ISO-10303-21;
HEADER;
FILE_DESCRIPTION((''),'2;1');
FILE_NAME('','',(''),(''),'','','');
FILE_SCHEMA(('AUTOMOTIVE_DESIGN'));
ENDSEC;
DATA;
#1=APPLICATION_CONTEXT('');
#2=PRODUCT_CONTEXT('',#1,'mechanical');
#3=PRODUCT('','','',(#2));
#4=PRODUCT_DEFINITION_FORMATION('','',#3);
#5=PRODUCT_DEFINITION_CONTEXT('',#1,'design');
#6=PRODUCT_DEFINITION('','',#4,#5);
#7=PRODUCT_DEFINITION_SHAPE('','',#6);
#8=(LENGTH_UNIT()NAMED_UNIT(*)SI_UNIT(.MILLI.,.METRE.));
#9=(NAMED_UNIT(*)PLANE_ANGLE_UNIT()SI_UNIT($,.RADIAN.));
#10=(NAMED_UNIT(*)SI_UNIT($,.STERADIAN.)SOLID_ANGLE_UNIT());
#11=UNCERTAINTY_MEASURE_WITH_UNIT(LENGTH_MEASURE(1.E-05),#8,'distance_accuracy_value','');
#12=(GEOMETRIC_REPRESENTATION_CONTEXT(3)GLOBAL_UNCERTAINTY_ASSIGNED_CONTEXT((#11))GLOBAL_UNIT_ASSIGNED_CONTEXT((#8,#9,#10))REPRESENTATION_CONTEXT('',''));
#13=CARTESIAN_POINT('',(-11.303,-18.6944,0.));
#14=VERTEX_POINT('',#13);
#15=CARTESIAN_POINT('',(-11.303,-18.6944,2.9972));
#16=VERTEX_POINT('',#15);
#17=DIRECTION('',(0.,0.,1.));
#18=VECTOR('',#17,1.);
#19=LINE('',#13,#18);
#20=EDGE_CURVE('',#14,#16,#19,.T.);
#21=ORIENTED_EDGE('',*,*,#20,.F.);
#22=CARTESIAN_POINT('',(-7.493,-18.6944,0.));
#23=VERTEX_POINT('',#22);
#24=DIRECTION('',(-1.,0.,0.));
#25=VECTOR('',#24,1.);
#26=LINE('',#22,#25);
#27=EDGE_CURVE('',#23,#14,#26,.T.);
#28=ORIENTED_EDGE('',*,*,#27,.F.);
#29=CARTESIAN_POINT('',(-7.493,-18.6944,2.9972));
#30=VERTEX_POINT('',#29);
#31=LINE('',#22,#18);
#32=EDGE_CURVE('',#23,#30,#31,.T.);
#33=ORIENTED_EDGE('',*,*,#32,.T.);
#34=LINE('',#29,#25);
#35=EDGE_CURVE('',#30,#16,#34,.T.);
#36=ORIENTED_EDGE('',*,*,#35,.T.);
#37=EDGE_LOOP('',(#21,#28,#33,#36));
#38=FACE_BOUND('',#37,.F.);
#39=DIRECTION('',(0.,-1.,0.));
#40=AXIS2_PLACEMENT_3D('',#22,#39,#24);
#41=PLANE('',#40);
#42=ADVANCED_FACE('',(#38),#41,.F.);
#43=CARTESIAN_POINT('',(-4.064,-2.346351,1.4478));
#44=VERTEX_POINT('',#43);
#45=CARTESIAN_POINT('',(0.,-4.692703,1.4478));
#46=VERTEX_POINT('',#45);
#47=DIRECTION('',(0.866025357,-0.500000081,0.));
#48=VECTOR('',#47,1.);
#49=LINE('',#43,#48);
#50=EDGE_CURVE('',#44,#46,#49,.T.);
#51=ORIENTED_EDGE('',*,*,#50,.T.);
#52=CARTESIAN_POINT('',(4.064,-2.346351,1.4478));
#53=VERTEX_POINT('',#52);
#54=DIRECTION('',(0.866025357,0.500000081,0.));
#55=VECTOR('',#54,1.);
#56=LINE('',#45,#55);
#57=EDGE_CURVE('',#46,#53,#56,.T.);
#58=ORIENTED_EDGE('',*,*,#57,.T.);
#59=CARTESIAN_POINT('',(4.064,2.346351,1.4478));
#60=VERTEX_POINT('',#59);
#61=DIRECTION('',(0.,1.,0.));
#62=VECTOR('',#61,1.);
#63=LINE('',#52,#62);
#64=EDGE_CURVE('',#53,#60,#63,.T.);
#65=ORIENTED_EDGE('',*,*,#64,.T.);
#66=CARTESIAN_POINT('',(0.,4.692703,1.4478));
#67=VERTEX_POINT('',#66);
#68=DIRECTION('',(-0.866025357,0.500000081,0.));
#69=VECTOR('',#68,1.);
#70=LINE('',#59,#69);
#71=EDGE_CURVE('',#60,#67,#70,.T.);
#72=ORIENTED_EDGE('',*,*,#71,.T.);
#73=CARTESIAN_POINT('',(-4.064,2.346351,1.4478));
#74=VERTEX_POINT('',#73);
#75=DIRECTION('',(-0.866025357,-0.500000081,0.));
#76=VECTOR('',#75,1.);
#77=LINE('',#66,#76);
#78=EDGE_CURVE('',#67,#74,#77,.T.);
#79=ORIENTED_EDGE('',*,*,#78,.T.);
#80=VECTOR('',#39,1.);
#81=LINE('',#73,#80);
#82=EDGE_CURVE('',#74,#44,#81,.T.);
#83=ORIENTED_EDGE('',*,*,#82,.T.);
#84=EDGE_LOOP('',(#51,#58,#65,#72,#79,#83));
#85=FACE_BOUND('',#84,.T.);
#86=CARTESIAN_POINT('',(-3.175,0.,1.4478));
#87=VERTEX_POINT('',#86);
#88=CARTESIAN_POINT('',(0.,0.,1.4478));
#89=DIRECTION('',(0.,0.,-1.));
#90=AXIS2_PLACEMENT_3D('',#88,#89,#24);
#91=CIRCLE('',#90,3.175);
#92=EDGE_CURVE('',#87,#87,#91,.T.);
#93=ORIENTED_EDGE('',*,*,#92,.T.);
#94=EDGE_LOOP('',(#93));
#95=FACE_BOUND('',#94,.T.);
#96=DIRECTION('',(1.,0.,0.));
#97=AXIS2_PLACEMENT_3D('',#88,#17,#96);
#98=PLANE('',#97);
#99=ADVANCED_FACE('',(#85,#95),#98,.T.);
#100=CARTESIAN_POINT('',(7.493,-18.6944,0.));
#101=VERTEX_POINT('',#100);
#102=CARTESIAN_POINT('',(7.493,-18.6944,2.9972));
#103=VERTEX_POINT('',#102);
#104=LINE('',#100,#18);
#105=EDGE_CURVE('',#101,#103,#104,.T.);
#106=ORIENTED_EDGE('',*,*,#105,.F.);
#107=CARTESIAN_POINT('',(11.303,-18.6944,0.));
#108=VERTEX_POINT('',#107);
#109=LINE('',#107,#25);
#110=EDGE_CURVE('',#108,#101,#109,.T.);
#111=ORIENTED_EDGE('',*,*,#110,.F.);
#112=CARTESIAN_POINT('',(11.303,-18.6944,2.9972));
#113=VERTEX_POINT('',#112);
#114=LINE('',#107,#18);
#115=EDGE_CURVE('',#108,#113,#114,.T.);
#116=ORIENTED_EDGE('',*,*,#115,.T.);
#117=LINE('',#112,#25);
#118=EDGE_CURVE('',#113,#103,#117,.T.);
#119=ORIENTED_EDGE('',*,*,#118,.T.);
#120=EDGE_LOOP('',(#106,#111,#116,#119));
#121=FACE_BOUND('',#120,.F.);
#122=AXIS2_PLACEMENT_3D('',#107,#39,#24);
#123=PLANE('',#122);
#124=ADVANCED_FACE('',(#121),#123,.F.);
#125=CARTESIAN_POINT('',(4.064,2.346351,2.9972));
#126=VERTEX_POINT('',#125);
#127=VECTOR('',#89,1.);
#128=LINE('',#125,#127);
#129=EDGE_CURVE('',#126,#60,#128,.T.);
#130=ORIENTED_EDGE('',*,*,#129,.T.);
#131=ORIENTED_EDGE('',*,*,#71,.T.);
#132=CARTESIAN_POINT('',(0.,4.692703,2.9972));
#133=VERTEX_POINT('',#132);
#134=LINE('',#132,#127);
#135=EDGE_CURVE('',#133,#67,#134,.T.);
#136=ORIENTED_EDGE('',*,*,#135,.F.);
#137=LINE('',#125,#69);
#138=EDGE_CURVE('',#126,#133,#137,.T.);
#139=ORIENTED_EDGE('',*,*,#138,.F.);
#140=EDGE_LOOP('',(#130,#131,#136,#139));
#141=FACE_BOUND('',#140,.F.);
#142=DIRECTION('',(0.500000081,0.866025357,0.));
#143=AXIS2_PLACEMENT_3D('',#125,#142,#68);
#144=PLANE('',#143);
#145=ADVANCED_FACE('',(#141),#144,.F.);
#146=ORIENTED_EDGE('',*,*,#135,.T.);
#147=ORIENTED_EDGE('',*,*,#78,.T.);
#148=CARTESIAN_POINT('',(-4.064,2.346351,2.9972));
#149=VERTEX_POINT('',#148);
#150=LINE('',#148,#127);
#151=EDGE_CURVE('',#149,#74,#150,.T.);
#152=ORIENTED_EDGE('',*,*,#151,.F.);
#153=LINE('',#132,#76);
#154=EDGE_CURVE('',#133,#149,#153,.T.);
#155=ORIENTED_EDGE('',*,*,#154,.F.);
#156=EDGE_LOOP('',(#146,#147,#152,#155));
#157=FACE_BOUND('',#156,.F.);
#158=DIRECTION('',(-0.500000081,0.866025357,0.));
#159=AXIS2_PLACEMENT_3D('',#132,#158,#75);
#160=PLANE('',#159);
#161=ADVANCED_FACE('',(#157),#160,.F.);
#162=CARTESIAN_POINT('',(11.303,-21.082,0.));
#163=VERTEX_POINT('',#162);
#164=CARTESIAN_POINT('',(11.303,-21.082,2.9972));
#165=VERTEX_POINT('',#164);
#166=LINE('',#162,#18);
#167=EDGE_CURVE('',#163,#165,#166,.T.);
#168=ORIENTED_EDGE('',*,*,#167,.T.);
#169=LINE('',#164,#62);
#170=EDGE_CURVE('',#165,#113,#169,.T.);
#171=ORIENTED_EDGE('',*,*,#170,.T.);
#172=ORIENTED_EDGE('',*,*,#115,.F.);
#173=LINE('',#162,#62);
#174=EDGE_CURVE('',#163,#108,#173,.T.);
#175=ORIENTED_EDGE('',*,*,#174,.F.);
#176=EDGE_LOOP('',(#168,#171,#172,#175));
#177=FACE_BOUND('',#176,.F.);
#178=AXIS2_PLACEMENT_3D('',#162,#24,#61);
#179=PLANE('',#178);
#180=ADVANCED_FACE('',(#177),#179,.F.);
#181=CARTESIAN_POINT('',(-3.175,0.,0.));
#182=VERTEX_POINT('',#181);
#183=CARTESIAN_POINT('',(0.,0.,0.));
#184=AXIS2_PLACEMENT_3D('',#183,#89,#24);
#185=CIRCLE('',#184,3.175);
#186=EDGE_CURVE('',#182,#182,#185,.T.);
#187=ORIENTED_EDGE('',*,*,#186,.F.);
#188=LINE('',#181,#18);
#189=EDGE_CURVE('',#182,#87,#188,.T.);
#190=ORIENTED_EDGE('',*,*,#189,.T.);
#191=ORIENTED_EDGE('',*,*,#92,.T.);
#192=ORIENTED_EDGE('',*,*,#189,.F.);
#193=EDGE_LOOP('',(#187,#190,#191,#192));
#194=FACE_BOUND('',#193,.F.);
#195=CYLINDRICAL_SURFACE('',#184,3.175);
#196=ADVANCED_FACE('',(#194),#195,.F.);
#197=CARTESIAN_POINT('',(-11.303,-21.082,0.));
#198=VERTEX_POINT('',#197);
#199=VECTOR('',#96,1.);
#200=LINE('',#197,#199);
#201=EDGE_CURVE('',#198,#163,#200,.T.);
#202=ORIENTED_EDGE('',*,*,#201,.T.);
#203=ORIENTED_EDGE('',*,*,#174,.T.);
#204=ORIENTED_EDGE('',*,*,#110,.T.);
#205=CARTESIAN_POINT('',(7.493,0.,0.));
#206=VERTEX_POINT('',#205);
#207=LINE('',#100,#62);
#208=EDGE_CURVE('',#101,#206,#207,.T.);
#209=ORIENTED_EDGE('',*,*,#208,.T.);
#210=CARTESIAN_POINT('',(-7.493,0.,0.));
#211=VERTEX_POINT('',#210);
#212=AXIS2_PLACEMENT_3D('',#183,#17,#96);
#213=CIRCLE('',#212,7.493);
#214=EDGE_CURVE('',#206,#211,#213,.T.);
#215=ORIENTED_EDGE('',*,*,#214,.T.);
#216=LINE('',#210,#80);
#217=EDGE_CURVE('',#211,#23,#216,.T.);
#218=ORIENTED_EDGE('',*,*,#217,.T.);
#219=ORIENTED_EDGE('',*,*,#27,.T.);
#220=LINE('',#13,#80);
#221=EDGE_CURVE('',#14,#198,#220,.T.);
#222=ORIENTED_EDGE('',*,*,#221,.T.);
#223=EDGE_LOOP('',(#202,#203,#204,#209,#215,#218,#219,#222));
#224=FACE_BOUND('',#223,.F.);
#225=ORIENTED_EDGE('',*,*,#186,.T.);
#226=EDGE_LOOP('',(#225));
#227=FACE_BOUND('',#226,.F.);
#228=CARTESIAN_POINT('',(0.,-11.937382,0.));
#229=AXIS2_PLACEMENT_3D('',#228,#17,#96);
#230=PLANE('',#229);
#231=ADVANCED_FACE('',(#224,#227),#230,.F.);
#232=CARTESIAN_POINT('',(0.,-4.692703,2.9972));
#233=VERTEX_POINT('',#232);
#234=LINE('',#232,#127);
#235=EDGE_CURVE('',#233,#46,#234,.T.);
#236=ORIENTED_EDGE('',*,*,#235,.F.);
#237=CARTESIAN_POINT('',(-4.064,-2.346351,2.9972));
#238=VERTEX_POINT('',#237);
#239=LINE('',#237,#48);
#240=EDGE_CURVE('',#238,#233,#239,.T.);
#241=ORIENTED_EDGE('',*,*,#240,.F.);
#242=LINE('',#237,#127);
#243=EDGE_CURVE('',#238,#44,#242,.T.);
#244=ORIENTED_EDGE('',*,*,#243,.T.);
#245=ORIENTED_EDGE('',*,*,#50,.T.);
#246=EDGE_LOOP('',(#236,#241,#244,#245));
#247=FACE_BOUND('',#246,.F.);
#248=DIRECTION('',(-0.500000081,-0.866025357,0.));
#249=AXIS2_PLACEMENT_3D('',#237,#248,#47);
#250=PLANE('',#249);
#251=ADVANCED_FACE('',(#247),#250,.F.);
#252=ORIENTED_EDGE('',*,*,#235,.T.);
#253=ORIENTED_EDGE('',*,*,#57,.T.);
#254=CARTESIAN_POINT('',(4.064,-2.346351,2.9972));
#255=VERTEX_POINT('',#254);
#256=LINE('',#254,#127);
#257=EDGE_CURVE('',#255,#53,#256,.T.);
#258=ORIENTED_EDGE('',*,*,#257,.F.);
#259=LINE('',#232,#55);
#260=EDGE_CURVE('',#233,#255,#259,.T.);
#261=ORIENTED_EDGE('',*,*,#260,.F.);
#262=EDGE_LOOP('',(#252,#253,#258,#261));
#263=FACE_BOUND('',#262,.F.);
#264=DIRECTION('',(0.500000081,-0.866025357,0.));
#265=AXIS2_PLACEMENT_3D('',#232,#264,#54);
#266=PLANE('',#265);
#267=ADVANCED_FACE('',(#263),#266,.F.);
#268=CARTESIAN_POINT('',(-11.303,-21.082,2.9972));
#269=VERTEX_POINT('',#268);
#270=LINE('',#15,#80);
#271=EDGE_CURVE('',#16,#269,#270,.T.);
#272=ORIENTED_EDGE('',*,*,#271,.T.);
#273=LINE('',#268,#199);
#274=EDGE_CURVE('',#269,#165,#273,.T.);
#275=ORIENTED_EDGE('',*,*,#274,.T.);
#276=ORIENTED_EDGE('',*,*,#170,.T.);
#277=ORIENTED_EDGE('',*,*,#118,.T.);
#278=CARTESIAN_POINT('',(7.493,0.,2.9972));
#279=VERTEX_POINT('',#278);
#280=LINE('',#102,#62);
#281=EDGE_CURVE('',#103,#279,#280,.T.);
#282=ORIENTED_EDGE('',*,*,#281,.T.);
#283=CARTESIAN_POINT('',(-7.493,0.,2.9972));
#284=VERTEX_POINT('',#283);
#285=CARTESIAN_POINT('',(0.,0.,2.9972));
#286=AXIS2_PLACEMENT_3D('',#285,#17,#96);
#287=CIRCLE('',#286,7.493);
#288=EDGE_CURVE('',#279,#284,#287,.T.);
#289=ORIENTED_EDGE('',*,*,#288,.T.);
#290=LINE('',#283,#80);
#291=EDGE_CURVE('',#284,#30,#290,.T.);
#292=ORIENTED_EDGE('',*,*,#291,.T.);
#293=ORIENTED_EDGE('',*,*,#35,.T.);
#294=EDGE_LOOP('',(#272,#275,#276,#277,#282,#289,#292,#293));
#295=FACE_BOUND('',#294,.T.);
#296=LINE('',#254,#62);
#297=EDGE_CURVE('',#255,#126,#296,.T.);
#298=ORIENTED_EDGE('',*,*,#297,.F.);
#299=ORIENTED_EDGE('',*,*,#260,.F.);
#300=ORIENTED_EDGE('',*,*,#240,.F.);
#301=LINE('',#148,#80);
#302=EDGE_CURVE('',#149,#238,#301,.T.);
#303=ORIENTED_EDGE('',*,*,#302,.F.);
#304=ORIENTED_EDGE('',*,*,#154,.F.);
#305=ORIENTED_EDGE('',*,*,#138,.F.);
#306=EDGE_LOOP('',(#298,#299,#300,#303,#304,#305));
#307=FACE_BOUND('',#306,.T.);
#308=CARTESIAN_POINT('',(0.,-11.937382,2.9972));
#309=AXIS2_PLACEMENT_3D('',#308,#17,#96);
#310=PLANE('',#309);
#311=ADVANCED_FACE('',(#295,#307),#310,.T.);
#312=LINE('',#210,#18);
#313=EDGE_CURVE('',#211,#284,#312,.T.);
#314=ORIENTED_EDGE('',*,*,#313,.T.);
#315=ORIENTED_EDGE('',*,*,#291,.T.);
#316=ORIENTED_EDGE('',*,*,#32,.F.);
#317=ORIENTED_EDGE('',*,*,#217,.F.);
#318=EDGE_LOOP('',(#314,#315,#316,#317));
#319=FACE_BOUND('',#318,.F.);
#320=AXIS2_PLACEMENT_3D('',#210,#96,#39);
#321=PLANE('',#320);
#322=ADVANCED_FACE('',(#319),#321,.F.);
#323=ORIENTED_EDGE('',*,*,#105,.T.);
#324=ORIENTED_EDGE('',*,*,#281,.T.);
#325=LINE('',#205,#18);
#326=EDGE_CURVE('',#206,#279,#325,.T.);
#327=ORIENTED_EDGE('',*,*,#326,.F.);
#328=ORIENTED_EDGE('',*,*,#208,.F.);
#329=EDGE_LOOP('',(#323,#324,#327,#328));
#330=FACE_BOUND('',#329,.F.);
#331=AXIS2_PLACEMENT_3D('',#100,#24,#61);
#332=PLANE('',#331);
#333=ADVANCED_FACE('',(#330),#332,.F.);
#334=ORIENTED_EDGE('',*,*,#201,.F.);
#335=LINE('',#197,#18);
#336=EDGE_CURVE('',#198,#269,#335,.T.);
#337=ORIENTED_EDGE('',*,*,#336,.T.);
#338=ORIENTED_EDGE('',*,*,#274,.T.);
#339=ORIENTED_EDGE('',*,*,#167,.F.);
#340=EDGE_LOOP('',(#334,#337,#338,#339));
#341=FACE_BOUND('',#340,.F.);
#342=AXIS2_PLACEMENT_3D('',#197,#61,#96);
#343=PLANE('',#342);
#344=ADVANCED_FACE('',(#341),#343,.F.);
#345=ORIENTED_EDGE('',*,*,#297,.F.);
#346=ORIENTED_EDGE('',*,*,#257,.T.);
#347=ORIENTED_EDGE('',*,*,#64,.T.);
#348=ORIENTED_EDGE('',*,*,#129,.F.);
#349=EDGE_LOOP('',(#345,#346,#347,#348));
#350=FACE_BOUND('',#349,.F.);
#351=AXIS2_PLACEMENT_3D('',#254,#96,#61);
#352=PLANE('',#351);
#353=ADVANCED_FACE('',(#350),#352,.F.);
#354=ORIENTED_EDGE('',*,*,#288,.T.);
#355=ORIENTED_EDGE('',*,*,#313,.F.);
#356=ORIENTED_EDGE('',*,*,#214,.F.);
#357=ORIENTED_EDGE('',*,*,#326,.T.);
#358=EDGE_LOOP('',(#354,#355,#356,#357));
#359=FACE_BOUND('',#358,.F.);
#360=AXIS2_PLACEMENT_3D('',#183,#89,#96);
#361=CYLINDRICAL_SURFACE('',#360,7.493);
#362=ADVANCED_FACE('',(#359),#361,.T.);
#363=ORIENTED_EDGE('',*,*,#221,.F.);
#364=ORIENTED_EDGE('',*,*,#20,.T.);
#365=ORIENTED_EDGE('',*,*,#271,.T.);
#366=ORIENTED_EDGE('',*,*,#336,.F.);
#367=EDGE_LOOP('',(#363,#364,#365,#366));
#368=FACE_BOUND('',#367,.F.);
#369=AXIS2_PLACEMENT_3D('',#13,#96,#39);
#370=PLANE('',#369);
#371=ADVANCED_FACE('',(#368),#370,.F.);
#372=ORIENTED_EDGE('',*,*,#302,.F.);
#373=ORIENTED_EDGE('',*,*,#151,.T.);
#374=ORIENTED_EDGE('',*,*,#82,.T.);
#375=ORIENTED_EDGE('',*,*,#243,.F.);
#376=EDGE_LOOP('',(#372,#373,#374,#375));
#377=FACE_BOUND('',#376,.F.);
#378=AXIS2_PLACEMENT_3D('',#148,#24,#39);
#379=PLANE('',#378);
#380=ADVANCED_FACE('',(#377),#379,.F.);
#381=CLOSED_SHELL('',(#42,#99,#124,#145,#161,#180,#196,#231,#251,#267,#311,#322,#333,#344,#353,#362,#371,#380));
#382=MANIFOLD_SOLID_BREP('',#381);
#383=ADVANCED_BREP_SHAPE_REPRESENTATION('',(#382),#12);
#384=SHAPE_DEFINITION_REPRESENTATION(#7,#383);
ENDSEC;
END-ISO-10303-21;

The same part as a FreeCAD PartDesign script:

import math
import FreeCAD as App
import Part
import Sketcher

V = App.Vector
Q = App.Units.Quantity

doc = App.newDocument("Part")
body = doc.addObject("PartDesign::Body", "Body")

sketch1 = body.newObject("Sketcher::SketchObject", "Sketch")
sketch1.AttachmentSupport = (doc.getObject("XY_Plane"), [""])
sketch1.MapMode = "FlatFace"
sketch1.addGeometry(Part.LineSegment(V(-7.5, 0, 0), V(-7.5, -18.7, 0)), False)
sketch1.addGeometry(Part.LineSegment(V(-7.5, -18.7, 0), V(-11.3, -18.7, 0)), False)
sketch1.addGeometry(Part.LineSegment(V(-11.3, -18.7, 0), V(-11.3, -21.1, 0)), False)
sketch1.addGeometry(Part.LineSegment(V(-11.3, -21.1, 0), V(11.3, -21.1, 0)), False)
sketch1.addGeometry(Part.LineSegment(V(11.3, -21.1, 0), V(11.3, -18.7, 0)), False)
sketch1.addGeometry(Part.LineSegment(V(11.3, -18.7, 0), V(7.5, -18.7, 0)), False)
sketch1.addGeometry(Part.LineSegment(V(7.5, -18.7, 0), V(7.5, 0, 0)), False)
sketch1.addGeometry(Part.ArcOfCircle(Part.Circle(V(0, 0, 0), V(0, 0, 1), 7.5), math.radians(0), math.radians(180)), False)
sketch1.addGeometry(Part.Circle(V(0, 0, 0), V(0, 0, 1), 3.2), False)
sketch1.addConstraint(Sketcher.Constraint("Coincident", 0, 2, 1, 1))
sketch1.addConstraint(Sketcher.Constraint("Coincident", 1, 2, 2, 1))
sketch1.addConstraint(Sketcher.Constraint("Coincident", 2, 2, 3, 1))
sketch1.addConstraint(Sketcher.Constraint("Coincident", 3, 2, 4, 1))
sketch1.addConstraint(Sketcher.Constraint("Coincident", 4, 2, 5, 1))
sketch1.addConstraint(Sketcher.Constraint("Coincident", 5, 2, 6, 1))
sketch1.addConstraint(Sketcher.Constraint("Tangent", 6, 2, 7, 1))
sketch1.addConstraint(Sketcher.Constraint("Tangent", 7, 2, 0, 1))
sketch1.addConstraint(Sketcher.Constraint("Vertical", 0))
sketch1.addConstraint(Sketcher.Constraint("Horizontal", 1))
sketch1.addConstraint(Sketcher.Constraint("Vertical", 2))
sketch1.addConstraint(Sketcher.Constraint("Horizontal", 3))
sketch1.addConstraint(Sketcher.Constraint("Vertical", 4))
sketch1.addConstraint(Sketcher.Constraint("Horizontal", 5))
sketch1.addConstraint(Sketcher.Constraint("Vertical", 6))
sketch1.addConstraint(Sketcher.Constraint("Coincident", 7, 3, -1, 1))
sketch1.addConstraint(Sketcher.Constraint("Coincident", 8, 3, -1, 1))
sketch1.addConstraint(Sketcher.Constraint("Symmetric", 1, 2, 4, 2, -2))
sketch1.addConstraint(Sketcher.Constraint("Diameter", 8, Q("0.25 in")))
sketch1.addConstraint(Sketcher.Constraint("Radius", 7, Q("0.295 in")))
sketch1.addConstraint(Sketcher.Constraint("DistanceX", 1, 2, 1, 1, Q("0.15 in")))
sketch1.addConstraint(Sketcher.Constraint("DistanceY", 0, 2, 0, 1, Q("0.736 in")))
sketch1.addConstraint(Sketcher.Constraint("DistanceY", 2, 2, 2, 1, Q("0.094 in")))
pad1 = body.newObject("PartDesign::Pad", "Pad")
pad1.Profile = sketch1
pad1.Length = Q("0.118 in")

sketch2 = body.newObject("Sketcher::SketchObject", "Sketch001")
sketch2.AttachmentSupport = (doc.getObject("XY_Plane"), [""])
sketch2.MapMode = "FlatFace"
sketch2.AttachmentOffset = App.Placement(V(0, 0, 0.118 * 25.4), App.Rotation())
sketch2.addGeometry(Part.LineSegment(V(0, 4.7, 0), V(-4.1, 2.3, 0)), False)
sketch2.addGeometry(Part.LineSegment(V(-4.1, 2.3, 0), V(-4.1, -2.3, 0)), False)
sketch2.addGeometry(Part.LineSegment(V(-4.1, -2.3, 0), V(0, -4.7, 0)), False)
sketch2.addGeometry(Part.LineSegment(V(0, -4.7, 0), V(4.1, -2.3, 0)), False)
sketch2.addGeometry(Part.LineSegment(V(4.1, -2.3, 0), V(4.1, 2.3, 0)), False)
sketch2.addGeometry(Part.LineSegment(V(4.1, 2.3, 0), V(0, 4.7, 0)), False)
sketch2.addConstraint(Sketcher.Constraint("Coincident", 0, 2, 1, 1))
sketch2.addConstraint(Sketcher.Constraint("Coincident", 1, 2, 2, 1))
sketch2.addConstraint(Sketcher.Constraint("Coincident", 2, 2, 3, 1))
sketch2.addConstraint(Sketcher.Constraint("Coincident", 3, 2, 4, 1))
sketch2.addConstraint(Sketcher.Constraint("Coincident", 4, 2, 5, 1))
sketch2.addConstraint(Sketcher.Constraint("Coincident", 5, 2, 0, 1))
sketch2.addConstraint(Sketcher.Constraint("Vertical", 1))
sketch2.addConstraint(Sketcher.Constraint("Vertical", 4))
sketch2.addConstraint(Sketcher.Constraint("Symmetric", 0, 2, 3, 2, -1, 1))
sketch2.addConstraint(Sketcher.Constraint("Symmetric", 2, 2, 5, 2, -1, 1))
sketch2.addConstraint(Sketcher.Constraint("PointOnObject", 2, 2, -2))
sketch2.addConstraint(Sketcher.Constraint("Parallel", 2, 5))
sketch2.addConstraint(Sketcher.Constraint("Horizontal", 1, 2, 3, 2))
sketch2.addConstraint(Sketcher.Constraint("Angle", 0, Q("-149.999995 deg")))
sketch2.addConstraint(Sketcher.Constraint("DistanceX", 0, 2, -1, 1, Q("0.16 in")))
sketch2.addConstraint(Sketcher.Constraint("DistanceY", 1, 2, 1, 1, Q("4.692702 mm")))
pocket1 = body.newObject("PartDesign::Pocket", "Pocket")
pocket1.Profile = sketch2
pocket1.Length = Q("0.061 in")

doc.recompute()
